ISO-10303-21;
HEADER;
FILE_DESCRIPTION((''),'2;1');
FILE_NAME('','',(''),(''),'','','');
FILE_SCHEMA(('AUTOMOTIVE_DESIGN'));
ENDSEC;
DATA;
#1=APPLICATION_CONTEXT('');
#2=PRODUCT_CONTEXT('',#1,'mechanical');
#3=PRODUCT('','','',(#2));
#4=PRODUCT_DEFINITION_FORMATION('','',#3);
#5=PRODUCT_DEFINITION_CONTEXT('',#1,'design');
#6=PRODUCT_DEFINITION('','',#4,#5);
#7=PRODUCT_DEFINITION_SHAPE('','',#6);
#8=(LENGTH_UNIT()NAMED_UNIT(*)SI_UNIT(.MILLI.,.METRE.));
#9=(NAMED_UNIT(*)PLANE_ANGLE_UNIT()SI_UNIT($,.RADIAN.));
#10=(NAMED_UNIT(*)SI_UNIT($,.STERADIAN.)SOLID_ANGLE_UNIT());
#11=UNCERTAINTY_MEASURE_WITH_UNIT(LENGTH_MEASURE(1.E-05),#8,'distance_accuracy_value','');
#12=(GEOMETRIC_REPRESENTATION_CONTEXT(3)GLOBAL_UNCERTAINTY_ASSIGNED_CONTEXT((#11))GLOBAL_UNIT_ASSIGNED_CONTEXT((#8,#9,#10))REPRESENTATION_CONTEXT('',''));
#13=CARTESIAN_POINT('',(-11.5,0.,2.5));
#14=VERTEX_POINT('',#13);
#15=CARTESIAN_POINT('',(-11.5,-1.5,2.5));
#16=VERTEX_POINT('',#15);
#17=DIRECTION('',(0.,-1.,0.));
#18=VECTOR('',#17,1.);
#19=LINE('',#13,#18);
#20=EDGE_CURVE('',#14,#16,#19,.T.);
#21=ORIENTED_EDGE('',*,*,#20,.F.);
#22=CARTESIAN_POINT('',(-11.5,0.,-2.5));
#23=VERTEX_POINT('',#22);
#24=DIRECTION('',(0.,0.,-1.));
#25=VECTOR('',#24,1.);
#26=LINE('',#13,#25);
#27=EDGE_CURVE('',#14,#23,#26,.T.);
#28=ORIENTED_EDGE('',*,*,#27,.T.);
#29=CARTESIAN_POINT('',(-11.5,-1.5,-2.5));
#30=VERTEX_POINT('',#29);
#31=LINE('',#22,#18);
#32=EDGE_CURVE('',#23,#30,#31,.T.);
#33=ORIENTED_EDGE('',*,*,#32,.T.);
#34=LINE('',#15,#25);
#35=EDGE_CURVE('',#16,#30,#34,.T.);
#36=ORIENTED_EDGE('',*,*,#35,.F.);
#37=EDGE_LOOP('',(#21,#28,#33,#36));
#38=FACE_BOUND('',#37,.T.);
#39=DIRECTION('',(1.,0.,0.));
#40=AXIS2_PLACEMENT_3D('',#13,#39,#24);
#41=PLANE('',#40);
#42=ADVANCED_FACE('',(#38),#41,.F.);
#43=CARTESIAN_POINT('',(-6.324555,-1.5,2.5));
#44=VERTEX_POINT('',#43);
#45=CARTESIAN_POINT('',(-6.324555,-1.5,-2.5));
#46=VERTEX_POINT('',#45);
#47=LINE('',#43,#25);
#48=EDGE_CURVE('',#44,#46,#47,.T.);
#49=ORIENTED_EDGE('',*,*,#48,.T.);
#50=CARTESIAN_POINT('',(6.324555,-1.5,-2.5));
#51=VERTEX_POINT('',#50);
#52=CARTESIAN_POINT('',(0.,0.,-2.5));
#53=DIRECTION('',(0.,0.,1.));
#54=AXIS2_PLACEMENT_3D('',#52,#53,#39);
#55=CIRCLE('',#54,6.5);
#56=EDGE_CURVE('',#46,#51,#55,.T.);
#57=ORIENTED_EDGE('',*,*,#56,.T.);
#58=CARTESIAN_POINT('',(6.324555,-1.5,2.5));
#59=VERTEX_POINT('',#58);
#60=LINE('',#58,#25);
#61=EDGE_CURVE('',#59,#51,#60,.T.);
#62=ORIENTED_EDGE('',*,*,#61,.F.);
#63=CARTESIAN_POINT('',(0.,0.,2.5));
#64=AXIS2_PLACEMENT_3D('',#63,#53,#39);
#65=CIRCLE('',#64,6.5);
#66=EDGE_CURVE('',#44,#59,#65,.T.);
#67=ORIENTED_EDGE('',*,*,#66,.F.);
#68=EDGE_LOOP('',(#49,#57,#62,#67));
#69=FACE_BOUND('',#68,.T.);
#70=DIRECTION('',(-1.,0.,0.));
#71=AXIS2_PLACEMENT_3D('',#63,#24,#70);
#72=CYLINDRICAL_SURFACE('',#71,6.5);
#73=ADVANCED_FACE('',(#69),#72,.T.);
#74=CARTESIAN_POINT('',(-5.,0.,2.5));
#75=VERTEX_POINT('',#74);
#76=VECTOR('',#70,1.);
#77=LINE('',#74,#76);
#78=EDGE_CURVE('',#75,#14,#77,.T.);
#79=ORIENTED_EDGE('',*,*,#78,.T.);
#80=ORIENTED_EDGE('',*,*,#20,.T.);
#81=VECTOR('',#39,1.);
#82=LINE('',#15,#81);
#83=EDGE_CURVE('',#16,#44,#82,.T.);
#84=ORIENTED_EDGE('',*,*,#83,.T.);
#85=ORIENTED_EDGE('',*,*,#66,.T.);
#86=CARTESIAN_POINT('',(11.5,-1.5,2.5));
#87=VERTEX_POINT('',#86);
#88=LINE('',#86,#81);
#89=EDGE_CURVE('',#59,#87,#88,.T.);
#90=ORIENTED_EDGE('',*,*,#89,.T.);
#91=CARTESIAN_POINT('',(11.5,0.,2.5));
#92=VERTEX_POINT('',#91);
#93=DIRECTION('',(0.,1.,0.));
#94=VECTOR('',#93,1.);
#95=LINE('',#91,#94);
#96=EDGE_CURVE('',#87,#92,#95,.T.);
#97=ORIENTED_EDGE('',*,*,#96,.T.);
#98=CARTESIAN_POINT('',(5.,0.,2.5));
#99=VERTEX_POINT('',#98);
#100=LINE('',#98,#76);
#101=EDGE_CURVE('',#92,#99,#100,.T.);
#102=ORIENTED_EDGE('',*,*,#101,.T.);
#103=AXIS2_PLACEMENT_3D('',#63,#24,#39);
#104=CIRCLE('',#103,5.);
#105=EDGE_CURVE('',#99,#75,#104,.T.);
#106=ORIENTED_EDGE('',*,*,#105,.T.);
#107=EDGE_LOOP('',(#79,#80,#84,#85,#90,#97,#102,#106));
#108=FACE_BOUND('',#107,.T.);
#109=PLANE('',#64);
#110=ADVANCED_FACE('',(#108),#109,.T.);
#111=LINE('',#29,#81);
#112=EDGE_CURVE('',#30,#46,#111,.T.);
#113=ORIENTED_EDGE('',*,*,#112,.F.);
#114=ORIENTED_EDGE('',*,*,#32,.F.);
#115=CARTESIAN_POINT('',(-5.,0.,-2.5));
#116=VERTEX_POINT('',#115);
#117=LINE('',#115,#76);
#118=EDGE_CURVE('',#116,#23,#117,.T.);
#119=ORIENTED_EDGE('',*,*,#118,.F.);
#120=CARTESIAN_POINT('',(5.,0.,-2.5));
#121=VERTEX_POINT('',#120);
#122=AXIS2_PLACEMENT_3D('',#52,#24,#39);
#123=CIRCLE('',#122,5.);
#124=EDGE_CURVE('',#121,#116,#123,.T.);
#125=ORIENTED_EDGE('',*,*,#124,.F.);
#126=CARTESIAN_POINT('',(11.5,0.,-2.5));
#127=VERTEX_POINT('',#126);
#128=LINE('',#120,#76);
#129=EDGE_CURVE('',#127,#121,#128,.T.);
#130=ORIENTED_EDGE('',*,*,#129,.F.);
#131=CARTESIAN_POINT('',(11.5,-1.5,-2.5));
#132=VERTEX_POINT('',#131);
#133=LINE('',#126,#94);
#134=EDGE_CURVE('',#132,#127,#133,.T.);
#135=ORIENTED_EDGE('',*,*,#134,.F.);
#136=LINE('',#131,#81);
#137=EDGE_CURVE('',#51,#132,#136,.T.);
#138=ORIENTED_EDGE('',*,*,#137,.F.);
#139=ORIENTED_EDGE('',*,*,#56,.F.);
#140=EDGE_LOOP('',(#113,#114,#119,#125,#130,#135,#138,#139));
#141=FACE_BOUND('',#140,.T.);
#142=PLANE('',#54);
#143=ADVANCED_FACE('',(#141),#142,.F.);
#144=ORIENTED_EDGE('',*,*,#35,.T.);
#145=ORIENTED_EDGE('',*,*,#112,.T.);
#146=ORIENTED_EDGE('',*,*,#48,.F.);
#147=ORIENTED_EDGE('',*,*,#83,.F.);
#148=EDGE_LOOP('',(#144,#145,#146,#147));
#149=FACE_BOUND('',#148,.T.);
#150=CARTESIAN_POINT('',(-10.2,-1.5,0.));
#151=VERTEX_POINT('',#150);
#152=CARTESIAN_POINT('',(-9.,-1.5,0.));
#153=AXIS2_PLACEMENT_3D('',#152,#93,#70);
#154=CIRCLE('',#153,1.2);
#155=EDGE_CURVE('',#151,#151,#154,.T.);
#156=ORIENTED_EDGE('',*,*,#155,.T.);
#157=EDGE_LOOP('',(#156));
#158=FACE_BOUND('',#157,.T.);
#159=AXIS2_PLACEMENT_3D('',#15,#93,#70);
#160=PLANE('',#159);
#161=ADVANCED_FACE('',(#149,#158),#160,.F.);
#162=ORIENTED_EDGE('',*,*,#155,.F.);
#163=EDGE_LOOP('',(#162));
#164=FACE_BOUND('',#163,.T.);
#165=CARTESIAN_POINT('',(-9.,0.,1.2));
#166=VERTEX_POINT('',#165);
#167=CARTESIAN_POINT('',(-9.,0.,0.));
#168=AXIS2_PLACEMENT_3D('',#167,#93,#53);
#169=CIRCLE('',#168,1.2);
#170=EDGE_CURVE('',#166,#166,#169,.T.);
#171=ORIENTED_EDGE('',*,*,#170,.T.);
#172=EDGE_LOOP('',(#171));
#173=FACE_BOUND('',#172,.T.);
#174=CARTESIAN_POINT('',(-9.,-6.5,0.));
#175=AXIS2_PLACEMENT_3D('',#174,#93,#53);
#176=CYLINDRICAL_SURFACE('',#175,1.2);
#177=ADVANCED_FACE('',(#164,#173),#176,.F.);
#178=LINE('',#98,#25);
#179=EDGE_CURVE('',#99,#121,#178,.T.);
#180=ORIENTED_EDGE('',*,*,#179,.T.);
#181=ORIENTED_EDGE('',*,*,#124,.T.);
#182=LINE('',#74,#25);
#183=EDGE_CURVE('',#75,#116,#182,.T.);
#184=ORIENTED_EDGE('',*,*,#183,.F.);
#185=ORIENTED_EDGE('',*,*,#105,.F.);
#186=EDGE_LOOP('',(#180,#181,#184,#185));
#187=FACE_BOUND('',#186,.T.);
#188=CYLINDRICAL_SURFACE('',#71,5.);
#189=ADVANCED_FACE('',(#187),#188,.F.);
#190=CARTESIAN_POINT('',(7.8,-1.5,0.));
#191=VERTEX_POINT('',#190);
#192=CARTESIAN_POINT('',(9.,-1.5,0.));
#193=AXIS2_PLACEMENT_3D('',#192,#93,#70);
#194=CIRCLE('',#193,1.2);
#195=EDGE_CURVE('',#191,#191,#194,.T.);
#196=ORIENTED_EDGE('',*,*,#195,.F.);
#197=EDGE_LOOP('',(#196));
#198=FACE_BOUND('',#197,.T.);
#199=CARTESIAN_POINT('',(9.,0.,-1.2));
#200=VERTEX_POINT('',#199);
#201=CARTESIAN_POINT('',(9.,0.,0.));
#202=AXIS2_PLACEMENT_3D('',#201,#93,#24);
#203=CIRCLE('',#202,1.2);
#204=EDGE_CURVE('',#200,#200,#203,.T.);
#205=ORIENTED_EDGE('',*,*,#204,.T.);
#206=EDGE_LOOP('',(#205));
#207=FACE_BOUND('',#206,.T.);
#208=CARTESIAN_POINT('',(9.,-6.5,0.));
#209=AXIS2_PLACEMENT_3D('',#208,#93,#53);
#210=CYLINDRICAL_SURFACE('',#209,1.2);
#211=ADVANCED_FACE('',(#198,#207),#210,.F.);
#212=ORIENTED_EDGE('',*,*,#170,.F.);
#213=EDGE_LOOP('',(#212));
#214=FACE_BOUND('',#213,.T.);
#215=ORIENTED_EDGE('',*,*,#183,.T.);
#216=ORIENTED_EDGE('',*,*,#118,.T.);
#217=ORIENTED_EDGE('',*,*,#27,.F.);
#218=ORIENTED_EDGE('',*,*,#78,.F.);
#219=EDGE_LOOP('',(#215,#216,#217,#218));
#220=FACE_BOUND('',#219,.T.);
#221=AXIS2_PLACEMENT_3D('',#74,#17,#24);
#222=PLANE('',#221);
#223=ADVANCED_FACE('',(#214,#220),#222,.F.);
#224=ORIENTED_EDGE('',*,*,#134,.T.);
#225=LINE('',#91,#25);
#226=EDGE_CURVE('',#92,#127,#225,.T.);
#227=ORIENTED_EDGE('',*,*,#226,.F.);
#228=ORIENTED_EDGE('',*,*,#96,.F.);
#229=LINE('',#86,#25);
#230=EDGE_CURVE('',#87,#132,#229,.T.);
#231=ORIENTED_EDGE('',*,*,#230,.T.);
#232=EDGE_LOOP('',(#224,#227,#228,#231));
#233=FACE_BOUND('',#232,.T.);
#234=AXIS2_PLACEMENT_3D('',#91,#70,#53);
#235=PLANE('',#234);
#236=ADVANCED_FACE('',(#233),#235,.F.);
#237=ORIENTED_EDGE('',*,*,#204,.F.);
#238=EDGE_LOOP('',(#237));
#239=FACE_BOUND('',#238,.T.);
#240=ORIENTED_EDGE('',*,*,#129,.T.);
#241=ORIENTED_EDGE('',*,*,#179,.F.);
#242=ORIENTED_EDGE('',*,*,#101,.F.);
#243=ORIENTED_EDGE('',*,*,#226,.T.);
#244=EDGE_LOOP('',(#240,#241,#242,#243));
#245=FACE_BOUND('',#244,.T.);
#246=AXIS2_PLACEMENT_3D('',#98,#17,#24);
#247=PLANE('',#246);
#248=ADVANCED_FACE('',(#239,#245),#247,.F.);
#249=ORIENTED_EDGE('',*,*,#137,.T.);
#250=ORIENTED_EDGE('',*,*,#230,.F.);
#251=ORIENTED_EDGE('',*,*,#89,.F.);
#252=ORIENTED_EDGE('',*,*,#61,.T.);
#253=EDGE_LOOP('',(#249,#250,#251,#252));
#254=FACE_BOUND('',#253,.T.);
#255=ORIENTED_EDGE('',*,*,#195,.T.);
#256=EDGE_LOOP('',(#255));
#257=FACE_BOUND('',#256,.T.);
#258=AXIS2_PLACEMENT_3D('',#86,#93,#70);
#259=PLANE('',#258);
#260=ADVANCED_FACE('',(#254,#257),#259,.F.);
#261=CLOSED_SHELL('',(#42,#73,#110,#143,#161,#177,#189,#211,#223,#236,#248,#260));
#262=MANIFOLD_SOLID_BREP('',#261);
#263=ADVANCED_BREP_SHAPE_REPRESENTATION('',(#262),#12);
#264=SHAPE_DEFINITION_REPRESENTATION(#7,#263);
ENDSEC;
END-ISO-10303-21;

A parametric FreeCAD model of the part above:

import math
import FreeCAD as App
import Part
import Sketcher

doc = App.newDocument("Part")
body = doc.addObject("PartDesign::Body", "Body")

# Sketch on XY plane
sketch1 = body.newObject("Sketcher::SketchObject", "Sketch")
sketch1.AttachmentSupport = (doc.getObject("XY_Plane"), [""])
sketch1.MapMode = "FlatFace"
sketch1.addGeometry(Part.LineSegment(App.Vector(11.5, 0, 0), App.Vector(5, 0, 0)), False)
sketch1.addGeometry(Part.ArcOfCircle(Part.Circle(App.Vector(0, 0, 0), App.Vector(0, 0, 1), 5), math.radians(180), math.radians(360)), False)
sketch1.addGeometry(Part.LineSegment(App.Vector(-5, 0, 0), App.Vector(-11.5, 0, 0)), False)
sketch1.addGeometry(Part.LineSegment(App.Vector(-11.5, 0, 0), App.Vector(-11.5, -1.5, 0)), False)
sketch1.addGeometry(Part.LineSegment(App.Vector(-11.5, -1.5, 0), App.Vector(-6.3, -1.5, 0)), False)
sketch1.addGeometry(Part.ArcOfCircle(Part.Circle(App.Vector(0, 0, 0), App.Vector(0, 0, 1), 6.5), math.radians(-167), math.radians(-13)), False)
sketch1.addGeometry(Part.LineSegment(App.Vector(6.3, -1.5, 0), App.Vector(11.5, -1.5, 0)), False)
sketch1.addGeometry(Part.LineSegment(App.Vector(11.5, -1.5, 0), App.Vector(11.5, 0, 0)), False)
sketch1.addConstraint(Sketcher.Constraint("Coincident", 0, 2, 1, 2))
sketch1.addConstraint(Sketcher.Constraint("Coincident", 1, 1, 2, 1))
sketch1.addConstraint(Sketcher.Constraint("Coincident", 2, 2, 3, 1))
sketch1.addConstraint(Sketcher.Constraint("Coincident", 3, 2, 4, 1))
sketch1.addConstraint(Sketcher.Constraint("Coincident", 4, 2, 5, 1))
sketch1.addConstraint(Sketcher.Constraint("Coincident", 5, 2, 6, 1))
sketch1.addConstraint(Sketcher.Constraint("Coincident", 6, 2, 7, 1))
sketch1.addConstraint(Sketcher.Constraint("Coincident", 7, 2, 0, 1))
sketch1.addConstraint(Sketcher.Constraint("Horizontal", 0))
sketch1.addConstraint(Sketcher.Constraint("Horizontal", 2))
sketch1.addConstraint(Sketcher.Constraint("Vertical", 3))
sketch1.addConstraint(Sketcher.Constraint("Horizontal", 4))
sketch1.addConstraint(Sketcher.Constraint("Horizontal", 6))
sketch1.addConstraint(Sketcher.Constraint("Vertical", 7))
sketch1.addConstraint(Sketcher.Constraint("Coincident", 1, 3, -1, 1))
sketch1.addConstraint(Sketcher.Constraint("Coincident", 5, 3, -1, 1))
sketch1.addConstraint(Sketcher.Constraint("Symmetric", 2, 2, 7, 2, -1, 1))
sketch1.addConstraint(Sketcher.Constraint("PointOnObject", 0, 2, -1))
sketch1.addConstraint(Sketcher.Constraint("Horizontal", 4, 2, 5, 2))
sketch1.addConstraint(Sketcher.Constraint("Radius", 1, 5.0))
sketch1.addConstraint(Sketcher.Constraint("Radius", 5, 6.5))
sketch1.addConstraint(Sketcher.Constraint("DistanceX", 0, 2, 0, 1, 6.5))
sketch1.addConstraint(Sketcher.Constraint("DistanceY", 3, 2, 3, 1, 1.5))
pad1 = body.newObject("PartDesign::Pad", "Pad")
pad1.Profile = sketch1
pad1.Length = 5
pad1.Midplane = True

# Sketch on XZ plane
sketch2 = body.newObject("Sketcher::SketchObject", "Sketch001")
sketch2.AttachmentSupport = (doc.getObject("XZ_Plane"), [""])
sketch2.MapMode = "FlatFace"
sketch2.addGeometry(Part.Circle(App.Vector(-9, 0, 0), App.Vector(0, 0, 1), 1.2), False)
sketch2.addGeometry(Part.Circle(App.Vector(9, 0, 0), App.Vector(0, 0, 1), 1.2), False)
sketch2.addConstraint(Sketcher.Constraint("Equal", 0, 1))
sketch2.addConstraint(Sketcher.Constraint("Symmetric", 0, 3, 1, 3, -1, 1))
sketch2.addConstraint(Sketcher.Constraint("PointOnObject", 0, 3, -1))
sketch2.addConstraint(Sketcher.Constraint("Diameter", 0, 2.4))
sketch2.addConstraint(Sketcher.Constraint("DistanceX", 0, 3, -1, 1, 9.0))
pocket1 = body.newObject("PartDesign::Pocket", "Pocket")
pocket1.Profile = sketch2
pocket1.Type = "ThroughAll"
pocket1.Reversed = True

doc.recompute()
